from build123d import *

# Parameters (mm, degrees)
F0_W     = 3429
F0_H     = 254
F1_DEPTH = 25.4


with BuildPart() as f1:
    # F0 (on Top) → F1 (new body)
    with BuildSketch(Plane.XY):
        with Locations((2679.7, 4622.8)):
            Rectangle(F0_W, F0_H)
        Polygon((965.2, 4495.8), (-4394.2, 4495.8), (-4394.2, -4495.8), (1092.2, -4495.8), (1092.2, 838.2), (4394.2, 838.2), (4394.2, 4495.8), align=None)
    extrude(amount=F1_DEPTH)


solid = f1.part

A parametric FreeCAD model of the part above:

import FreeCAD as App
import Part
import Sketcher
Q = App.Units.Quantity

doc = App.newDocument("Part")
body = doc.addObject("PartDesign::Body", "Body")

sketch1 = body.newObject("Sketcher::SketchObject", "Sketch")
sketch1.AttachmentSupport = (doc.getObject("XY_Plane"), [""])
sketch1.MapMode = "FlatFace"
sketch1.addGeometry([
    Part.LineSegment(App.Vector(965, 4750, 0), App.Vector(965, 4496, 0)),
    Part.LineSegment(App.Vector(965, 4496, 0), App.Vector(-4394, 4496, 0)),
    Part.LineSegment(App.Vector(-4394, 4496, 0), App.Vector(-4394, -4496, 0)),
    Part.LineSegment(App.Vector(-4394, -4496, 0), App.Vector(1092, -4496, 0)),
    Part.LineSegment(App.Vector(1092, -4496, 0), App.Vector(1092, 838, 0)),
    Part.LineSegment(App.Vector(1092, 838, 0), App.Vector(4394, 838, 0)),
    Part.LineSegment(App.Vector(4394, 838, 0), App.Vector(4394, 4750, 0)),
    Part.LineSegment(App.Vector(4394, 4750, 0), App.Vector(965, 4750, 0)),
], False)
sketch1.addConstraint([
    Sketcher.Constraint("Coincident", 0, 2, 1, 1),
    Sketcher.Constraint("Coincident", 1, 2, 2, 1),
    Sketcher.Constraint("Coincident", 2, 2, 3, 1),
    Sketcher.Constraint("Coincident", 3, 2, 4, 1),
    Sketcher.Constraint("Coincident", 4, 2, 5, 1),
    Sketcher.Constraint("Coincident", 5, 2, 6, 1),
    Sketcher.Constraint("Coincident", 6, 2, 7, 1),
    Sketcher.Constraint("Coincident", 7, 2, 0, 1),
    Sketcher.Constraint("Vertical", 0),
    Sketcher.Constraint("Horizontal", 1),
    Sketcher.Constraint("Vertical", 2),
    Sketcher.Constraint("Horizontal", 3),
    Sketcher.Constraint("Vertical", 4),
    Sketcher.Constraint("Horizontal", 5),
    Sketcher.Constraint("Vertical", 6),
    Sketcher.Constraint("Horizontal", 7),
    Sketcher.Constraint("DistanceX", 1, 2, 1, 1, Q("211 in")),
    Sketcher.Constraint("DistanceX", 3, 1, 3, 2, Q("216 in")),
    Sketcher.Constraint("DistanceX", 5, 1, 5, 2, Q("130 in")),
    Sketcher.Constraint("DistanceY", 0, 2, 0, 1, Q("10 in")),
    Sketcher.Constraint("DistanceY", 2, 2, 2, 1, Q("354 in")),
    Sketcher.Constraint("DistanceY", 4, 1, 4, 2, Q("210 in")),
    Sketcher.Constraint("DistanceX", -1, 1, 0, 2, Q("38 in")),
    Sketcher.Constraint("DistanceY", -1, 1, 0, 2, Q("177 in")),
])
pad1 = body.newObject("PartDesign::Pad", "Pad")
pad1.Profile = sketch1
pad1.Length = Q("1 in")

doc.recompute()
